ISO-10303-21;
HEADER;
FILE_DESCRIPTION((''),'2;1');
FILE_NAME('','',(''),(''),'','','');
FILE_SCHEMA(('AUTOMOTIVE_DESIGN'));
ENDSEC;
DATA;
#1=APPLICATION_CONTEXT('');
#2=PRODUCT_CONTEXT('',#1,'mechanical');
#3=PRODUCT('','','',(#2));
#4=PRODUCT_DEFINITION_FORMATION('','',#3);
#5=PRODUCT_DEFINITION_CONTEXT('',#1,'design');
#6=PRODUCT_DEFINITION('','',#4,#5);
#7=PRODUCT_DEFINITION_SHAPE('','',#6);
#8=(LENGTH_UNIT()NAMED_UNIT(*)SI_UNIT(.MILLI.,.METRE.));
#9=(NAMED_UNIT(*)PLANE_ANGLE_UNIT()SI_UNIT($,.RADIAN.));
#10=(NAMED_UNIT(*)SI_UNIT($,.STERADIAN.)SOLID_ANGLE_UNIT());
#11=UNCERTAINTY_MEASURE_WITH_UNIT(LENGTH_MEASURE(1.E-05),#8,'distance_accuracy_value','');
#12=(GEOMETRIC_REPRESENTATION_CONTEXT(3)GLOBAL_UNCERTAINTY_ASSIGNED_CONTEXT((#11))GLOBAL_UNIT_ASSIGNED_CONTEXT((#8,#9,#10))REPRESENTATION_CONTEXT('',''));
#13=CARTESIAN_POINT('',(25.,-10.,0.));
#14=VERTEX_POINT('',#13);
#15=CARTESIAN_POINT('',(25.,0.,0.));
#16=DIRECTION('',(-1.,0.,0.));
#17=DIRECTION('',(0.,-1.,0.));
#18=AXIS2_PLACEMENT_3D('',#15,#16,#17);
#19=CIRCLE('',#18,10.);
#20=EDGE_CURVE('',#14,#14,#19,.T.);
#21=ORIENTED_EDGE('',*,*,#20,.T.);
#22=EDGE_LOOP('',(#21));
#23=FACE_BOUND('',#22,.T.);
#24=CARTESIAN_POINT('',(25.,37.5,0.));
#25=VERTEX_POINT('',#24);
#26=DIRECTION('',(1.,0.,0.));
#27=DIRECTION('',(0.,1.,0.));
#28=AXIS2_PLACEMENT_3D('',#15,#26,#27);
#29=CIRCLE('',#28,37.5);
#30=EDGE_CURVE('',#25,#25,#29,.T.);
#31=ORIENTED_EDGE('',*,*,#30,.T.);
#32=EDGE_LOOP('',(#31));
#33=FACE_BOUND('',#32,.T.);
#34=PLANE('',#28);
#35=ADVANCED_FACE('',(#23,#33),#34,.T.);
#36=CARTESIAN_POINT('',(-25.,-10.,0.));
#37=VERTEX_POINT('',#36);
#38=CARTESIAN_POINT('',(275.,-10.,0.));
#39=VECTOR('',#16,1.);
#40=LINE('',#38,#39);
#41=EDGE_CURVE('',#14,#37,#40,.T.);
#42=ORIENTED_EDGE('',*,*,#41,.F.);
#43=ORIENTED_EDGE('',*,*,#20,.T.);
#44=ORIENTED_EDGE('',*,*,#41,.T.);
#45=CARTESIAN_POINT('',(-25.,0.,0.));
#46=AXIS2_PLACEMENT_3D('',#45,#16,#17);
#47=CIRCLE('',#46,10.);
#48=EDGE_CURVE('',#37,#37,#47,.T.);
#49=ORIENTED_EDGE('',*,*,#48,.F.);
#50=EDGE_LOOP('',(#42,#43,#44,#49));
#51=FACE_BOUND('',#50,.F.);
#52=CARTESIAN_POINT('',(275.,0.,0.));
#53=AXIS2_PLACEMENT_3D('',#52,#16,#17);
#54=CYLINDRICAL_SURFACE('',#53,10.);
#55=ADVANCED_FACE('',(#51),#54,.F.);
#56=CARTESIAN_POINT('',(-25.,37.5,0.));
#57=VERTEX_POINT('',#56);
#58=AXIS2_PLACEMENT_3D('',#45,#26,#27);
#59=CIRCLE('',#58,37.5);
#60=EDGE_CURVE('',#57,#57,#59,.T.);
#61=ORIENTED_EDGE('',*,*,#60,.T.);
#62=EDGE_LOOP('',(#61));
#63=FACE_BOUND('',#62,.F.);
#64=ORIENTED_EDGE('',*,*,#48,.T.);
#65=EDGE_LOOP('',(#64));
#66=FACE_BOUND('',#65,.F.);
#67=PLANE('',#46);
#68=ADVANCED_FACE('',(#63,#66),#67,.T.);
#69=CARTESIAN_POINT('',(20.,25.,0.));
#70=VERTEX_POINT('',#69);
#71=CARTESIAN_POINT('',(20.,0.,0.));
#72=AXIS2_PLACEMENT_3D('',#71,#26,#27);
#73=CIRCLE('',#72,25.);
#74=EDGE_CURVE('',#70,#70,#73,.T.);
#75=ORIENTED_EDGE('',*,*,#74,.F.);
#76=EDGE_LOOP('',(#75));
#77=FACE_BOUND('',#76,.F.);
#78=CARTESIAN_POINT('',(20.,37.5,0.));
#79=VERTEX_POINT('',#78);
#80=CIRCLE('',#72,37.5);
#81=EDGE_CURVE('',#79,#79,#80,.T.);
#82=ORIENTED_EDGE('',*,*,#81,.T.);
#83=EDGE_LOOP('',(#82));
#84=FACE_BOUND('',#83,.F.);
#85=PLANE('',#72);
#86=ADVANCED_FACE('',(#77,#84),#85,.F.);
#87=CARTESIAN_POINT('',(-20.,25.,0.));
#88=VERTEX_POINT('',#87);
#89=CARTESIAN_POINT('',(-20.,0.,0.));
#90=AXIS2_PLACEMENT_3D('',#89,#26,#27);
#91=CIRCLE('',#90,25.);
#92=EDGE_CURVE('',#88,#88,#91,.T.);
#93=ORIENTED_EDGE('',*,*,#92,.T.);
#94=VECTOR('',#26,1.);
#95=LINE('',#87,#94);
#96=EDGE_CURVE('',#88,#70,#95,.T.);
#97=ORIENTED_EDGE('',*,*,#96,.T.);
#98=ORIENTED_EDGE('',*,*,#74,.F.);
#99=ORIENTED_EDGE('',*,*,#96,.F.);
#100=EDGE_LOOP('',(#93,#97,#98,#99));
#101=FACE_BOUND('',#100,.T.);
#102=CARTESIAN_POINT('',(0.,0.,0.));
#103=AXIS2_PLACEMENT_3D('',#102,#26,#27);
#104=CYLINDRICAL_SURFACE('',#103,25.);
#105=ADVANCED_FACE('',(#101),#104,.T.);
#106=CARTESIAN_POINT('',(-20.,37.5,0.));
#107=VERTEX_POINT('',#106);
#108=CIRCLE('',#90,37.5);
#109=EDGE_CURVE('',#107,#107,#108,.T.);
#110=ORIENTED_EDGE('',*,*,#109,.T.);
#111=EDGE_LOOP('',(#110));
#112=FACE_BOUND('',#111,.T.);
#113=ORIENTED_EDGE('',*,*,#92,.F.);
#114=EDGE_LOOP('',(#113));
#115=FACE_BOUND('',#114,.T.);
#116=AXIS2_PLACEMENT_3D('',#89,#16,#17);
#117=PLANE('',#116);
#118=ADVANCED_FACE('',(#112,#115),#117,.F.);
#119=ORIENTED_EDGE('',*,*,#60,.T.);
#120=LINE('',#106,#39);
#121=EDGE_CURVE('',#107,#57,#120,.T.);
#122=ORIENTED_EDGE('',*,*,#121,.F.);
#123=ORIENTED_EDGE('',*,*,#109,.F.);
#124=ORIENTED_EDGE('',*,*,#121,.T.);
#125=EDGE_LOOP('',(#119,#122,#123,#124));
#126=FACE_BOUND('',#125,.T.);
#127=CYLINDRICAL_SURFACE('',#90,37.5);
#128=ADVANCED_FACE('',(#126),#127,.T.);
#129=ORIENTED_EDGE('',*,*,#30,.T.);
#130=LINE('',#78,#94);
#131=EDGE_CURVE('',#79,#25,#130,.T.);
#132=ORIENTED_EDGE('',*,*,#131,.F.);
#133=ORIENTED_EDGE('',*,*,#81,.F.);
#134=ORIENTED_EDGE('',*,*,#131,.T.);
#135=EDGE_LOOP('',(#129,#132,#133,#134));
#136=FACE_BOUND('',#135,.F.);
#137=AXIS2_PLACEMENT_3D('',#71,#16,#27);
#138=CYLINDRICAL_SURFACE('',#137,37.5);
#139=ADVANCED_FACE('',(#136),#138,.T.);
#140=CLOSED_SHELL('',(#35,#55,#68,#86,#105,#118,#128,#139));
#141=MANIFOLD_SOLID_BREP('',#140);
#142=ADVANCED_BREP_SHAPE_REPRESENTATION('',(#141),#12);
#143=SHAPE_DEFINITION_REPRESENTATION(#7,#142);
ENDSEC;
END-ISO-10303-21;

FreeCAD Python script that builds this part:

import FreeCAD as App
import Part
import Sketcher
Q = App.Units.Quantity

doc = App.newDocument("Part")
body = doc.addObject("PartDesign::Body", "Body")

# Sketch on YZ plane
sketch1 = doc.addObject("Sketcher::SketchObject", "Sketch")
body.addObject(sketch1)
sketch1.AttachmentSupport = (doc.YZ_Plane, [""])
sketch1.MapMode = "FlatFace"
sketch1.addGeometry(Part.Circle(App.Vector(0, 0, 0), App.Vector(0, 0, 1), 25), False)
sketch1.addConstraint([
    Sketcher.Constraint("Coincident", 0, 3, -1, 1),
    Sketcher.Constraint("Diameter", 0, Q("50 mm")),
])
pad1 = doc.addObject("PartDesign::Pad", "Pad")
body.addObject(pad1)
pad1.Profile = sketch1
pad1.Length = 20

# Sketch on YZ plane
sketch2 = doc.addObject("Sketcher::SketchObject", "Sketch001")
body.addObject(sketch2)
sketch2.AttachmentSupport = (doc.YZ_Plane, [""])
sketch2.MapMode = "FlatFace"
sketch2.AttachmentOffset = App.Placement(App.Vector(0, 0, 20), App.Rotation())
sketch2.addGeometry(Part.Circle(App.Vector(0, 0, 0), App.Vector(0, 0, 1), 38), False)
sketch2.addConstraint([
    Sketcher.Constraint("Coincident", 0, 3, -1, 1),
    Sketcher.Constraint("Diameter", 0, Q("75 mm")),
])
pad2 = doc.addObject("PartDesign::Pad", "Pad001")
body.addObject(pad2)
pad2.Profile = sketch2
pad2.Length = 5
body2 = doc.addObject("PartDesign::Body", "Body001")
doc.recompute()

body2.BaseFeature = body
doc.recompute()

mirroring = doc.addObject("Part::Mirroring", "Mirroring")
mirroring.Source = body
mirroring.Base = App.Vector(0, 0, 0)
mirroring.Normal = App.Vector(-1, 0, 0)
body3 = doc.addObject("PartDesign::Body", "Body002")
body3.BaseFeature = mirroring
boolean = doc.addObject("PartDesign::Boolean", "Boolean")
body2.addObject(boolean)
boolean.Type = "Fuse"
boolean.addObjects([body3])
doc.recompute()

# Sketch on YZ plane
sketch3 = doc.addObject("Sketcher::SketchObject", "Sketch002")
body2.addObject(sketch3)
sketch3.AttachmentSupport = (doc.getObject("YZ_Plane001"), [""])
sketch3.MapMode = "FlatFace"
sketch3.AttachmentOffset = App.Placement(App.Vector(0, 0, 25), App.Rotation())
sketch3.addGeometry(Part.Circle(App.Vector(0, 0, 0), App.Vector(0, 0, 1), 10), False)
sketch3.addConstraint([
    Sketcher.Constraint("Coincident", 0, 3, -1, 1),
    Sketcher.Constraint("Diameter", 0, Q("20 mm")),
])
doc.recompute()
hole = doc.addObject("PartDesign::Hole", "Hole")
body2.addObject(hole)
hole.Profile = sketch3
hole.ThreadType = "None"
hole.Diameter = 20
hole.DepthType = "Dimension"
hole.Depth = 250
hole.DrillPoint = "Flat"
mirroring.Visibility = False

doc.recompute()
